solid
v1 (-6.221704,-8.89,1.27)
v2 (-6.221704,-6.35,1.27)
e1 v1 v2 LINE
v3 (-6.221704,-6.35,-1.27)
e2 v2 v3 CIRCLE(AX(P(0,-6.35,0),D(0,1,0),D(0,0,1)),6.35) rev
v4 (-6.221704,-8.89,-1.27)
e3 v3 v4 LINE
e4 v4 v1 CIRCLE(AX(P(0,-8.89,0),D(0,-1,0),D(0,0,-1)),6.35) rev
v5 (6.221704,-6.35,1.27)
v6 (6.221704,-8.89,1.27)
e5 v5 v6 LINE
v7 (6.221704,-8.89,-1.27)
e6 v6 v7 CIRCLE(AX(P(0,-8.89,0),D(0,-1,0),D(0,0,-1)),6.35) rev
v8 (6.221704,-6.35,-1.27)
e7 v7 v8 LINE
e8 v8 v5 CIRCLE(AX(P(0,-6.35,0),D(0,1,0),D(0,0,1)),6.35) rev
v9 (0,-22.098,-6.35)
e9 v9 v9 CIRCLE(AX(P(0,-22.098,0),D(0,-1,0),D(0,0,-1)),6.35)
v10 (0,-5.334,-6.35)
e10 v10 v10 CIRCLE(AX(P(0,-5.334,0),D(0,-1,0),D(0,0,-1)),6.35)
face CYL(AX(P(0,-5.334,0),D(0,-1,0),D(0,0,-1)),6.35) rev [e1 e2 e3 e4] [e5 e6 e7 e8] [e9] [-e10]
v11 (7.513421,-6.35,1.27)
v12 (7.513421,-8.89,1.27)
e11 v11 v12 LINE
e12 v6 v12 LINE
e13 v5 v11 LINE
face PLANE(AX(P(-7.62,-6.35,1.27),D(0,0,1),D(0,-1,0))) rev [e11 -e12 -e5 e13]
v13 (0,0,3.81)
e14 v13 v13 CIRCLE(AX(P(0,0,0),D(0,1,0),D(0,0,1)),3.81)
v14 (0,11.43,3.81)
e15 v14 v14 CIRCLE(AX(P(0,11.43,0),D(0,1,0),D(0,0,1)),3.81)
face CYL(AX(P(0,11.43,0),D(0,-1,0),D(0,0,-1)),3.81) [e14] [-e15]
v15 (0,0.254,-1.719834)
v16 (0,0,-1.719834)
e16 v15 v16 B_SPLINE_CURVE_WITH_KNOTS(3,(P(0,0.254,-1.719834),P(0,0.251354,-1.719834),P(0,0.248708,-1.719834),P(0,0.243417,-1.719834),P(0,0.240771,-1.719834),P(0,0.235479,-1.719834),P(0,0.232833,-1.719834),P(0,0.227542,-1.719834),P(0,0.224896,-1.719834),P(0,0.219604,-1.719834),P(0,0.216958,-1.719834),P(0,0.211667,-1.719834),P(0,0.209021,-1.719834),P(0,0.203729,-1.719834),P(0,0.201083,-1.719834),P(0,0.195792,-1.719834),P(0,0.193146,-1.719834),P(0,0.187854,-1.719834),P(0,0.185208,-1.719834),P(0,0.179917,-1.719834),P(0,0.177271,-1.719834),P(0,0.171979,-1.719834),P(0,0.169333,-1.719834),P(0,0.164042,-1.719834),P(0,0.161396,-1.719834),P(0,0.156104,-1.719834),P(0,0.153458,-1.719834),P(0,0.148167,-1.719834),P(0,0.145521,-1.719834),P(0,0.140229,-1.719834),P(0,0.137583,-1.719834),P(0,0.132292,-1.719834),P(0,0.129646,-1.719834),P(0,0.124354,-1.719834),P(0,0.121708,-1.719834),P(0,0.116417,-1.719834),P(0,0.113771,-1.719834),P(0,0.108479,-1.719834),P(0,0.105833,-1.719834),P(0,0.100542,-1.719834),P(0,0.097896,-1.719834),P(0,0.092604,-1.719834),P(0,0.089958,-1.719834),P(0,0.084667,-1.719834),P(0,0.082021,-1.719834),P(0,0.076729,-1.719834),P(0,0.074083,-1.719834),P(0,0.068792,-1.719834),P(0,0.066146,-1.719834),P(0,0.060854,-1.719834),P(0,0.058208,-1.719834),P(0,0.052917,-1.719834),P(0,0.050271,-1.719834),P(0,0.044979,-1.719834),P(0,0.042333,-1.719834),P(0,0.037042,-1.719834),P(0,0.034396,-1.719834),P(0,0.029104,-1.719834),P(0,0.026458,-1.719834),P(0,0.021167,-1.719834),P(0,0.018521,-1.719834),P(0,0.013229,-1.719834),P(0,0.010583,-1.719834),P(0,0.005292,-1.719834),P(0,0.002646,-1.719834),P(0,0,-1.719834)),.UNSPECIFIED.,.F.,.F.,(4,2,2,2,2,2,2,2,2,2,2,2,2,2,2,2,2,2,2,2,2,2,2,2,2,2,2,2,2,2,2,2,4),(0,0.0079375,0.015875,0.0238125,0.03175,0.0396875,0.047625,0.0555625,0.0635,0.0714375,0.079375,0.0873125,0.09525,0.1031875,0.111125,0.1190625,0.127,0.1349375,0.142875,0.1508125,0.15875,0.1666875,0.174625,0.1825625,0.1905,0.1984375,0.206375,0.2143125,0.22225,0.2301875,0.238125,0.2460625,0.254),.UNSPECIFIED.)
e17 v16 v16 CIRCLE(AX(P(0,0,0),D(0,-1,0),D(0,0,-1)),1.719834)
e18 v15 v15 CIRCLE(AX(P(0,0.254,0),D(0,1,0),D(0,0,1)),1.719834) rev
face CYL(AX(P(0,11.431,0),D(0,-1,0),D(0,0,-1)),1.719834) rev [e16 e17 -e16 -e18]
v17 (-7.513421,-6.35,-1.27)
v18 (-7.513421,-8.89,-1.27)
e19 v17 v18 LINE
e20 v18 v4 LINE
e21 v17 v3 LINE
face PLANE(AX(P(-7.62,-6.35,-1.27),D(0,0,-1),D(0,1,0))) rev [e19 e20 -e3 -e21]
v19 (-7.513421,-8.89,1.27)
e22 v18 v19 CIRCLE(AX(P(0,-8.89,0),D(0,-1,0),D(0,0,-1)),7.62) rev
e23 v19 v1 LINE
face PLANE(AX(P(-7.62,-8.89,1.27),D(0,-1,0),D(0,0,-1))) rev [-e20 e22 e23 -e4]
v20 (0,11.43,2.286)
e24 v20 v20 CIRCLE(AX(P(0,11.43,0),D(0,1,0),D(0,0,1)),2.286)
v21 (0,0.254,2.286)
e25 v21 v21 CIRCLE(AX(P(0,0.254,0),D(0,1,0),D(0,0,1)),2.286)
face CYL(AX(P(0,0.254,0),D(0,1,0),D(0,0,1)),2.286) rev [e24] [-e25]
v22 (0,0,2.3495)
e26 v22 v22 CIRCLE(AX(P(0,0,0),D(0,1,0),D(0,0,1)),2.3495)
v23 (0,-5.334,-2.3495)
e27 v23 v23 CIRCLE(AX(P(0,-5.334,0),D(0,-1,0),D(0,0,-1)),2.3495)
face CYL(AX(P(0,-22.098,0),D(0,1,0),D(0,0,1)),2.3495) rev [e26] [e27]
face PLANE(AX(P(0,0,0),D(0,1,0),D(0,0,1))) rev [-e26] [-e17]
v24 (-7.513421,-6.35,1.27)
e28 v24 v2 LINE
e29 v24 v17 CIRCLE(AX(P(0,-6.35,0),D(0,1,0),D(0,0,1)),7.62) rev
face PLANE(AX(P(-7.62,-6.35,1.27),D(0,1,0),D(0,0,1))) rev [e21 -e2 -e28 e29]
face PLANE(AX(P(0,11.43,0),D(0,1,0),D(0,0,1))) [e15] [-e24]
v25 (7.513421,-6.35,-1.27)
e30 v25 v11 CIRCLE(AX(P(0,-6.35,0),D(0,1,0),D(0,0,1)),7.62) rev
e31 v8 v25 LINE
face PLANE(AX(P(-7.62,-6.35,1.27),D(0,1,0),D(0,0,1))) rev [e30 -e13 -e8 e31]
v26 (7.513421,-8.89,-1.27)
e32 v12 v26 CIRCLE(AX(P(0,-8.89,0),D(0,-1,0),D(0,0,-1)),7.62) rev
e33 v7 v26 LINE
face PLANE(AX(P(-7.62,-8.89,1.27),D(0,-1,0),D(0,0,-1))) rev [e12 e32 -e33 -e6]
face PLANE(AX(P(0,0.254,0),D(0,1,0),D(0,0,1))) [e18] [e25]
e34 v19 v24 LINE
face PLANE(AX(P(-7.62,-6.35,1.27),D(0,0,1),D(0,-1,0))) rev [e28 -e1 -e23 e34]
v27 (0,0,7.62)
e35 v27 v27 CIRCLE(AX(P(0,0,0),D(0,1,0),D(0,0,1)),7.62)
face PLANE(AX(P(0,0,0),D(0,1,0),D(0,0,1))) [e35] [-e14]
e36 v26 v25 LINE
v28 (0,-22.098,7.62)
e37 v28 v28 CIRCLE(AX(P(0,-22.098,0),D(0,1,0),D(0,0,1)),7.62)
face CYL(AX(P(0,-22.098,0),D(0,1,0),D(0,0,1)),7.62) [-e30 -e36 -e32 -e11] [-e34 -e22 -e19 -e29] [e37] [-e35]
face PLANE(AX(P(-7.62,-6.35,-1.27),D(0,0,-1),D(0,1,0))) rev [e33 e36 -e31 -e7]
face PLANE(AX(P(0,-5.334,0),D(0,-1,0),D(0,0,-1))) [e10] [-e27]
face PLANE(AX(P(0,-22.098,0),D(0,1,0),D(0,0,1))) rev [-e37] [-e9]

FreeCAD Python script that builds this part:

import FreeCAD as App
import Part
import Sketcher
from FreeCAD import Vector
Q = App.Units.Quantity


def add_polygon(sketch, points):
    """Adds a closed chain of lines whose ends are joined by coincident constraints."""
    first, n = sketch.GeometryCount, len(points)
    for a, b in zip(points, points[1:] + points[:1]):
        sketch.addGeometry(Part.LineSegment(App.Vector(*a, 0), App.Vector(*b, 0)), False)
    for i in range(n):
        sketch.addConstraint(Sketcher.Constraint("Coincident", first + i, 2, first + (i + 1) % n, 1))

doc = App.newDocument("Part")
params = doc.addObject("Spreadsheet::Sheet", "Params")
for row, (alias, value) in enumerate([
    ("sketch1_diameter", "0.6 in"),
    ("pad1_length", "0.87 in"),
    ("sketch2_diameter", "0.5 in"),
    ("pocket1_length", "0.66 in"),
    ("sketch3_diameter", "0.185 in"),
    ("sketch4_diameter", "0.3 in"),
    ("pad2_length", "0.45 in"),
    ("sketch5_diameter", "0.18 in"),
    ("pocket3_length", "0.44 in"),
    ("sketch7_width", "0.1 in"),
], start=1):
    params.set(f"A{row}", alias)
    params.set(f"B{row}", "=" + value)
    params.setAlias(f"B{row}", alias)

body = doc.addObject("PartDesign::Body", "Body")

# Sketch on XZ plane
sketch1 = body.newObject("Sketcher::SketchObject", "Sketch")
sketch1.AttachmentSupport = (doc.getObject("XZ_Plane"), [""])
sketch1.MapMode = "FlatFace"
sketch1.addGeometry(Part.Circle(Vector(0, 0, 0), Vector(0, 0, 1), 8), False)
sketch1.addConstraint(Sketcher.Constraint("Coincident", 0, 3, -1, 1))
sketch1.addConstraint(Sketcher.Constraint("Diameter", 0, Q("0.6 in")))
sketch1.setExpression("Constraints[1]", "Params.sketch1_diameter")
pad1 = body.newObject("PartDesign::Pad", "Pad")
pad1.Profile = sketch1
pad1.setExpression("Length", "Params.pad1_length")

# Sketch on XZ plane
sketch2 = body.newObject("Sketcher::SketchObject", "Sketch001")
sketch2.AttachmentSupport = (doc.getObject("XZ_Plane"), [""])
sketch2.MapMode = "FlatFace"
sketch2.AttachmentOffset = App.Placement(Vector(0, 0, 0.87 * 25.4), App.Rotation())
sketch2.addGeometry(Part.Circle(Vector(0, 0, 0), Vector(0, 0, 1), 6), False)
sketch2.addConstraint(Sketcher.Constraint("Coincident", 0, 3, -1, 1))
sketch2.addConstraint(Sketcher.Constraint("Diameter", 0, Q("0.5 in")))
sketch2.setExpression("Constraints[1]", "Params.sketch2_diameter")
pocket1 = body.newObject("PartDesign::Pocket", "Pocket")
pocket1.Profile = sketch2
pocket1.setExpression("Length", "Params.pocket1_length")

# Sketch on XZ plane
sketch3 = body.newObject("Sketcher::SketchObject", "Sketch002")
sketch3.AttachmentSupport = (doc.getObject("XZ_Plane"), [""])
sketch3.MapMode = "FlatFace"
sketch3.addGeometry(Part.Circle(Vector(0, 0, 0), Vector(0, 0, 1), 2.3), False)
sketch3.addConstraint(Sketcher.Constraint("Coincident", 0, 3, -1, 1))
sketch3.addConstraint(Sketcher.Constraint("Diameter", 0, Q("0.185 in")))
sketch3.setExpression("Constraints[1]", "Params.sketch3_diameter")
pocket2 = body.newObject("PartDesign::Pocket", "Pocket001")
pocket2.Profile = sketch3
pocket2.Type = "ThroughAll"
pocket2.Midplane = True

# Sketch on XZ plane
sketch4 = body.newObject("Sketcher::SketchObject", "Sketch003")
sketch4.AttachmentSupport = (doc.getObject("XZ_Plane"), [""])
sketch4.MapMode = "FlatFace"
sketch4.addGeometry(Part.Circle(Vector(0, 0, 0), Vector(0, 0, 1), 3.8), False)
sketch4.addConstraint(Sketcher.Constraint("Coincident", 0, 3, -1, 1))
sketch4.addConstraint(Sketcher.Constraint("Diameter", 0, Q("0.3 in")))
sketch4.setExpression("Constraints[1]", "Params.sketch4_diameter")
pad2 = body.newObject("PartDesign::Pad", "Pad001")
pad2.Profile = sketch4
pad2.setExpression("Length", "Params.pad2_length")
pad2.Reversed = True

# Sketch on XZ plane
sketch5 = body.newObject("Sketcher::SketchObject", "Sketch004")
sketch5.AttachmentSupport = (doc.getObject("XZ_Plane"), [""])
sketch5.MapMode = "FlatFace"
sketch5.AttachmentOffset = App.Placement(Vector(0, 0, -0.45 * 25.4), App.Rotation())
sketch5.addGeometry(Part.Circle(Vector(0, 0, 0), Vector(0, 0, 1), 2.3), False)
sketch5.addConstraint(Sketcher.Constraint("Coincident", 0, 3, -1, 1))
sketch5.addConstraint(Sketcher.Constraint("Diameter", 0, Q("0.18 in")))
sketch5.setExpression("Constraints[1]", "Params.sketch5_diameter")
pocket3 = body.newObject("PartDesign::Pocket", "Pocket002")
pocket3.Profile = sketch5
pocket3.setExpression("Length", "Params.pocket3_length")
pocket3.Reversed = True

# Sketch on XZ plane
sketch6 = body.newObject("Sketcher::SketchObject", "Sketch005")
sketch6.AttachmentSupport = (doc.getObject("XZ_Plane"), [""])
sketch6.MapMode = "FlatFace"
sketch6.addGeometry(Part.Circle(Vector(0, 0, 0), Vector(0, 0, 1), 1.7), False)
sketch6.addConstraint(Sketcher.Constraint("Coincident", 0, 3, -1, 1))
sketch6.addConstraint(Sketcher.Constraint("Diameter", 0, 3.439667))
pocket4 = body.newObject("PartDesign::Pocket", "Pocket003")
pocket4.Profile = sketch6
pocket4.Type = "UpToFirst"

# Sketch on YZ plane
sketch7 = body.newObject("Sketcher::SketchObject", "Sketch006")
sketch7.AttachmentSupport = (doc.getObject("YZ_Plane"), [""])
sketch7.MapMode = "FlatFace"
add_polygon(sketch7, [(-6.3, 1.3), (-8.9, 1.3), (-8.9, -1.3), (-6.3, -1.3)])  # lines 0-3
sketch7.addConstraint(Sketcher.Constraint("Horizontal", 0))
sketch7.addConstraint(Sketcher.Constraint("Vertical", 1))
sketch7.addConstraint(Sketcher.Constraint("Horizontal", 2))
sketch7.addConstraint(Sketcher.Constraint("Vertical", 3))
sketch7.addConstraint(Sketcher.Constraint("Equal", 2, 1))
sketch7.addConstraint(Sketcher.Constraint("DistanceX", 0, 2, 0, 1, Q("0.1 in")))
sketch7.addConstraint(Sketcher.Constraint("DistanceX", 0, 2, -1, 1, Q("0.35 in")))
sketch7.addConstraint(Sketcher.Constraint("DistanceY", -1, 1, 0, 2, Q("0.05 in")))
sketch7.setExpression("Constraints[9]", "Params.sketch7_width")
pocket5 = body.newObject("PartDesign::Pocket", "Pocket004")
pocket5.Profile = sketch7
pocket5.Type = "ThroughAll"
pocket5.Midplane = True

doc.recompute()
